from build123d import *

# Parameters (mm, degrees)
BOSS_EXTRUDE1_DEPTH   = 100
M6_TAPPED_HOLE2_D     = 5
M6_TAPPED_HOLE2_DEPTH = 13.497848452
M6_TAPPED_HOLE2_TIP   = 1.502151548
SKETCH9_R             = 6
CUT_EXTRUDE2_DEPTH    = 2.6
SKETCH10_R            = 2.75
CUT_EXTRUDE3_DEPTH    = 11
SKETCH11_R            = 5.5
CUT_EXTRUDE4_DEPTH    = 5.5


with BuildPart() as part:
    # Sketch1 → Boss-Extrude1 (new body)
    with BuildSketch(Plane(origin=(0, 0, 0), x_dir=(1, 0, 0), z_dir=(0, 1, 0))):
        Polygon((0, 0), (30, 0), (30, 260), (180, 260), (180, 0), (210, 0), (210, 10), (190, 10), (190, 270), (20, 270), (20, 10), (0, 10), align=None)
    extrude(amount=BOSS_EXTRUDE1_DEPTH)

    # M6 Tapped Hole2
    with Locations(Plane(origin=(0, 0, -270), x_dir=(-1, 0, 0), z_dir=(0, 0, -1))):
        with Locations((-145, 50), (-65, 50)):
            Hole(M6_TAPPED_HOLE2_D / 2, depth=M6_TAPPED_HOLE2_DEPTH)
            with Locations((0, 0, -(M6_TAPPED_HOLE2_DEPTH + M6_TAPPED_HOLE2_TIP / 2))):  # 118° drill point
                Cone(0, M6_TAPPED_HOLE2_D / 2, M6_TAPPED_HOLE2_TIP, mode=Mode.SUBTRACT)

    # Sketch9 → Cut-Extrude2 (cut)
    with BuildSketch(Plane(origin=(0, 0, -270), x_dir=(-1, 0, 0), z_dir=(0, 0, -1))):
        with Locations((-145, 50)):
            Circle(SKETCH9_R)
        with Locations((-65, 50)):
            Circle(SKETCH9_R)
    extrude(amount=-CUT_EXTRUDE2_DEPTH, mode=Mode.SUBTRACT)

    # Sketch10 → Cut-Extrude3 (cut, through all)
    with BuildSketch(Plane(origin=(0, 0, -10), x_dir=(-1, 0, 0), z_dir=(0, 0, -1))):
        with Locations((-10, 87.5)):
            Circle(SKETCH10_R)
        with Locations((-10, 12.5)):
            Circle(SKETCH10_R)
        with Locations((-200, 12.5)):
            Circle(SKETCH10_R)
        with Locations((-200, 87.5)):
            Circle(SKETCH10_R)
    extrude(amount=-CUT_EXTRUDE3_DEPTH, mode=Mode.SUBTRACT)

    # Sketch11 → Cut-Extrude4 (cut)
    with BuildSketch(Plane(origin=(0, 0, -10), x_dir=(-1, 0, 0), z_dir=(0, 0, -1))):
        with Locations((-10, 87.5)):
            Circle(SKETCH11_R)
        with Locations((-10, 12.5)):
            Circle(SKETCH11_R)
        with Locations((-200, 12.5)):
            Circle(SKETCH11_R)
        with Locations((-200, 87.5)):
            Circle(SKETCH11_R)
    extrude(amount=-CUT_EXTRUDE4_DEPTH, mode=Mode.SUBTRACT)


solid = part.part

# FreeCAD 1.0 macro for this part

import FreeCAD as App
import Part
import Sketcher
Q = App.Units.Quantity


def add_polygon(sketch, points):
    """Adds a closed chain of lines whose ends are joined by coincident constraints."""
    first, n = sketch.GeometryCount, len(points)
    for a, b in zip(points, points[1:] + points[:1]):
        sketch.addGeometry(Part.LineSegment(App.Vector(*a, 0), App.Vector(*b, 0)), False)
    for i in range(n):
        sketch.addConstraint(Sketcher.Constraint("Coincident", first + i, 2, first + (i + 1) % n, 1))

doc = App.newDocument("Part")
body = doc.addObject("PartDesign::Body", "Body")

# Sketch on XZ plane
sketch1 = body.newObject("Sketcher::SketchObject", "Sketch")
sketch1.AttachmentSupport = (doc.getObject("XZ_Plane"), [""])
sketch1.MapMode = "FlatFace"
add_polygon(sketch1, [(0, 0), (30, 0), (30, -260), (180, -260), (180, 0), (210, 0), (210, -10), (190, -10), (190, -270), (20, -270), (20, -10), (0, -10)])  # lines 0-11
sketch1.addConstraint(Sketcher.Constraint("Horizontal", 0))
sketch1.addConstraint(Sketcher.Constraint("Vertical", 1))
sketch1.addConstraint(Sketcher.Constraint("Horizontal", 2))
sketch1.addConstraint(Sketcher.Constraint("Vertical", 3))
sketch1.addConstraint(Sketcher.Constraint("Horizontal", 4))
sketch1.addConstraint(Sketcher.Constraint("Vertical", 5))
sketch1.addConstraint(Sketcher.Constraint("Horizontal", 6))
sketch1.addConstraint(Sketcher.Constraint("Vertical", 7))
sketch1.addConstraint(Sketcher.Constraint("Horizontal", 8))
sketch1.addConstraint(Sketcher.Constraint("Vertical", 9))
sketch1.addConstraint(Sketcher.Constraint("Horizontal", 10))
sketch1.addConstraint(Sketcher.Constraint("Vertical", 11))
sketch1.addConstraint(Sketcher.Constraint("Coincident", 11, 2, -1, 1))
sketch1.addConstraint(Sketcher.Constraint("PointOnObject", 3, 2, -1))
sketch1.addConstraint(Sketcher.Constraint("Horizontal", 6, 2, 9, 2))
sketch1.addConstraint(Sketcher.Constraint("Equal", 0, 4))
sketch1.addConstraint(Sketcher.Constraint("Equal", 6, 10))
sketch1.addConstraint(Sketcher.Constraint("Equal", 3, 7))
sketch1.addConstraint(Sketcher.Constraint("DistanceX", 0, 1, 0, 2, Q("30 mm")))
sketch1.addConstraint(Sketcher.Constraint("DistanceX", 2, 1, 2, 2, Q("150 mm")))
sketch1.addConstraint(Sketcher.Constraint("DistanceX", 6, 2, 6, 1, Q("20 mm")))
sketch1.addConstraint(Sketcher.Constraint("DistanceY", 1, 2, 1, 1, Q("260 mm")))
sketch1.addConstraint(Sketcher.Constraint("DistanceY", 5, 2, 5, 1, Q("10 mm")))
pad1 = body.newObject("PartDesign::Pad", "Pad")
pad1.Profile = sketch1
pad1.Length = 100
pad1.Reversed = True

# Sketch on XY plane
sketch2 = body.newObject("Sketcher::SketchObject", "Sketch001")
sketch2.AttachmentSupport = (doc.getObject("XY_Plane"), [""])
sketch2.MapMode = "FlatFace"
sketch2.AttachmentOffset = App.Placement(App.Vector(0, 0, -270), App.Rotation())
sketch2.addGeometry(Part.Circle(App.Vector(145, 50, 0), App.Vector(0, 0, 1), 2.5), False)
sketch2.addGeometry(Part.Circle(App.Vector(65, 50, 0), App.Vector(0, 0, 1), 2.5), False)
sketch2.addConstraint(Sketcher.Constraint("Equal", 0, 1))
sketch2.addConstraint(Sketcher.Constraint("Horizontal", 0, 3, 1, 3))
sketch2.addConstraint(Sketcher.Constraint("Diameter", 0, Q("5 mm")))
sketch2.addConstraint(Sketcher.Constraint("DistanceX", -1, 1, 0, 3, Q("145 mm")))
sketch2.addConstraint(Sketcher.Constraint("DistanceY", -1, 1, 0, 3, Q("50 mm")))
sketch2.addConstraint(Sketcher.Constraint("DistanceX", -1, 1, 1, 3, Q("65 mm")))
doc.recompute()
hole = body.newObject("PartDesign::Hole", "Hole")
hole.Profile = sketch2
hole.ThreadType = "None"
hole.Diameter = 5
hole.DepthType = "Dimension"
hole.Depth = 13.497848
hole.DrillPoint = "Angled"
hole.DrillPointAngle = 118
hole.Reversed = True

# Sketch on XY plane
sketch3 = body.newObject("Sketcher::SketchObject", "Sketch002")
sketch3.AttachmentSupport = (doc.getObject("XY_Plane"), [""])
sketch3.MapMode = "FlatFace"
sketch3.AttachmentOffset = App.Placement(App.Vector(0, 0, -270), App.Rotation())
sketch3.addGeometry(Part.Circle(App.Vector(145, 50, 0), App.Vector(0, 0, 1), 6), False)
sketch3.addGeometry(Part.Circle(App.Vector(65, 50, 0), App.Vector(0, 0, 1), 6), False)
sketch3.addConstraint(Sketcher.Constraint("Equal", 0, 1))
sketch3.addConstraint(Sketcher.Constraint("Horizontal", 0, 3, 1, 3))
sketch3.addConstraint(Sketcher.Constraint("Diameter", 0, Q("12 mm")))
sketch3.addConstraint(Sketcher.Constraint("DistanceX", -1, 1, 0, 3, Q("145 mm")))
sketch3.addConstraint(Sketcher.Constraint("DistanceY", -1, 1, 0, 3, Q("50 mm")))
sketch3.addConstraint(Sketcher.Constraint("DistanceX", -1, 1, 1, 3, Q("65 mm")))
pocket1 = body.newObject("PartDesign::Pocket", "Pocket")
pocket1.Profile = sketch3
pocket1.Length = 2.6
pocket1.Reversed = True

# Sketch on XY plane
sketch4 = body.newObject("Sketcher::SketchObject", "Sketch003")
sketch4.AttachmentSupport = (doc.getObject("XY_Plane"), [""])
sketch4.MapMode = "FlatFace"
sketch4.AttachmentOffset = App.Placement(App.Vector(0, 0, -10), App.Rotation())
sketch4.addGeometry(Part.Circle(App.Vector(10, 87.5, 0), App.Vector(0, 0, 1), 2.75), False)
sketch4.addGeometry(Part.Circle(App.Vector(10, 12.5, 0), App.Vector(0, 0, 1), 2.75), False)
sketch4.addGeometry(Part.Circle(App.Vector(200, 12.5, 0), App.Vector(0, 0, 1), 2.75), False)
sketch4.addGeometry(Part.Circle(App.Vector(200, 87.5, 0), App.Vector(0, 0, 1), 2.75), False)
sketch4.addConstraint(Sketcher.Constraint("Equal", 0, 1))
sketch4.addConstraint(Sketcher.Constraint("Equal", 1, 2))
sketch4.addConstraint(Sketcher.Constraint("Equal", 2, 3))
sketch4.addConstraint(Sketcher.Constraint("Horizontal", 1, 3, 2, 3))
sketch4.addConstraint(Sketcher.Constraint("Horizontal", 0, 3, 3, 3))
sketch4.addConstraint(Sketcher.Constraint("Vertical", 0, 3, 1, 3))
sketch4.addConstraint(Sketcher.Constraint("Vertical", 2, 3, 3, 3))
sketch4.addConstraint(Sketcher.Constraint("Diameter", 0, Q("5.5 mm")))
sketch4.addConstraint(Sketcher.Constraint("DistanceX", -1, 1, 0, 3, Q("10 mm")))
sketch4.addConstraint(Sketcher.Constraint("DistanceX", -1, 1, 2, 3, Q("200 mm")))
sketch4.addConstraint(Sketcher.Constraint("DistanceY", 1, 3, 0, 3, Q("75 mm")))
sketch4.addConstraint(Sketcher.Constraint("DistanceY", -1, 1, 0, 3, Q("87.5 mm")))
pocket2 = body.newObject("PartDesign::Pocket", "Pocket001")
pocket2.Profile = sketch4
pocket2.Type = "ThroughAll"
pocket2.Reversed = True

# Sketch on XY plane
sketch5 = body.newObject("Sketcher::SketchObject", "Sketch004")
sketch5.AttachmentSupport = (doc.getObject("XY_Plane"), [""])
sketch5.MapMode = "FlatFace"
sketch5.AttachmentOffset = App.Placement(App.Vector(0, 0, -10), App.Rotation())
sketch5.addGeometry(Part.Circle(App.Vector(10, 87.5, 0), App.Vector(0, 0, 1), 5.5), False)
sketch5.addGeometry(Part.Circle(App.Vector(10, 12.5, 0), App.Vector(0, 0, 1), 5.5), False)
sketch5.addGeometry(Part.Circle(App.Vector(200, 12.5, 0), App.Vector(0, 0, 1), 5.5), False)
sketch5.addGeometry(Part.Circle(App.Vector(200, 87.5, 0), App.Vector(0, 0, 1), 5.5), False)
sketch5.addConstraint(Sketcher.Constraint("Equal", 0, 1))
sketch5.addConstraint(Sketcher.Constraint("Equal", 1, 2))
sketch5.addConstraint(Sketcher.Constraint("Equal", 2, 3))
sketch5.addConstraint(Sketcher.Constraint("Horizontal", 1, 3, 2, 3))
sketch5.addConstraint(Sketcher.Constraint("Horizontal", 0, 3, 3, 3))
sketch5.addConstraint(Sketcher.Constraint("Vertical", 0, 3, 1, 3))
sketch5.addConstraint(Sketcher.Constraint("Vertical", 2, 3, 3, 3))
sketch5.addConstraint(Sketcher.Constraint("Diameter", 0, Q("11 mm")))
sketch5.addConstraint(Sketcher.Constraint("DistanceX", -1, 1, 0, 3, Q("10 mm")))
sketch5.addConstraint(Sketcher.Constraint("DistanceX", -1, 1, 2, 3, Q("200 mm")))
sketch5.addConstraint(Sketcher.Constraint("DistanceY", 1, 3, 0, 3, Q("75 mm")))
sketch5.addConstraint(Sketcher.Constraint("DistanceY", -1, 1, 0, 3, Q("87.5 mm")))
pocket3 = body.newObject("PartDesign::Pocket", "Pocket002")
pocket3.Profile = sketch5
pocket3.Length = 5.5
pocket3.Reversed = True

doc.recompute()
